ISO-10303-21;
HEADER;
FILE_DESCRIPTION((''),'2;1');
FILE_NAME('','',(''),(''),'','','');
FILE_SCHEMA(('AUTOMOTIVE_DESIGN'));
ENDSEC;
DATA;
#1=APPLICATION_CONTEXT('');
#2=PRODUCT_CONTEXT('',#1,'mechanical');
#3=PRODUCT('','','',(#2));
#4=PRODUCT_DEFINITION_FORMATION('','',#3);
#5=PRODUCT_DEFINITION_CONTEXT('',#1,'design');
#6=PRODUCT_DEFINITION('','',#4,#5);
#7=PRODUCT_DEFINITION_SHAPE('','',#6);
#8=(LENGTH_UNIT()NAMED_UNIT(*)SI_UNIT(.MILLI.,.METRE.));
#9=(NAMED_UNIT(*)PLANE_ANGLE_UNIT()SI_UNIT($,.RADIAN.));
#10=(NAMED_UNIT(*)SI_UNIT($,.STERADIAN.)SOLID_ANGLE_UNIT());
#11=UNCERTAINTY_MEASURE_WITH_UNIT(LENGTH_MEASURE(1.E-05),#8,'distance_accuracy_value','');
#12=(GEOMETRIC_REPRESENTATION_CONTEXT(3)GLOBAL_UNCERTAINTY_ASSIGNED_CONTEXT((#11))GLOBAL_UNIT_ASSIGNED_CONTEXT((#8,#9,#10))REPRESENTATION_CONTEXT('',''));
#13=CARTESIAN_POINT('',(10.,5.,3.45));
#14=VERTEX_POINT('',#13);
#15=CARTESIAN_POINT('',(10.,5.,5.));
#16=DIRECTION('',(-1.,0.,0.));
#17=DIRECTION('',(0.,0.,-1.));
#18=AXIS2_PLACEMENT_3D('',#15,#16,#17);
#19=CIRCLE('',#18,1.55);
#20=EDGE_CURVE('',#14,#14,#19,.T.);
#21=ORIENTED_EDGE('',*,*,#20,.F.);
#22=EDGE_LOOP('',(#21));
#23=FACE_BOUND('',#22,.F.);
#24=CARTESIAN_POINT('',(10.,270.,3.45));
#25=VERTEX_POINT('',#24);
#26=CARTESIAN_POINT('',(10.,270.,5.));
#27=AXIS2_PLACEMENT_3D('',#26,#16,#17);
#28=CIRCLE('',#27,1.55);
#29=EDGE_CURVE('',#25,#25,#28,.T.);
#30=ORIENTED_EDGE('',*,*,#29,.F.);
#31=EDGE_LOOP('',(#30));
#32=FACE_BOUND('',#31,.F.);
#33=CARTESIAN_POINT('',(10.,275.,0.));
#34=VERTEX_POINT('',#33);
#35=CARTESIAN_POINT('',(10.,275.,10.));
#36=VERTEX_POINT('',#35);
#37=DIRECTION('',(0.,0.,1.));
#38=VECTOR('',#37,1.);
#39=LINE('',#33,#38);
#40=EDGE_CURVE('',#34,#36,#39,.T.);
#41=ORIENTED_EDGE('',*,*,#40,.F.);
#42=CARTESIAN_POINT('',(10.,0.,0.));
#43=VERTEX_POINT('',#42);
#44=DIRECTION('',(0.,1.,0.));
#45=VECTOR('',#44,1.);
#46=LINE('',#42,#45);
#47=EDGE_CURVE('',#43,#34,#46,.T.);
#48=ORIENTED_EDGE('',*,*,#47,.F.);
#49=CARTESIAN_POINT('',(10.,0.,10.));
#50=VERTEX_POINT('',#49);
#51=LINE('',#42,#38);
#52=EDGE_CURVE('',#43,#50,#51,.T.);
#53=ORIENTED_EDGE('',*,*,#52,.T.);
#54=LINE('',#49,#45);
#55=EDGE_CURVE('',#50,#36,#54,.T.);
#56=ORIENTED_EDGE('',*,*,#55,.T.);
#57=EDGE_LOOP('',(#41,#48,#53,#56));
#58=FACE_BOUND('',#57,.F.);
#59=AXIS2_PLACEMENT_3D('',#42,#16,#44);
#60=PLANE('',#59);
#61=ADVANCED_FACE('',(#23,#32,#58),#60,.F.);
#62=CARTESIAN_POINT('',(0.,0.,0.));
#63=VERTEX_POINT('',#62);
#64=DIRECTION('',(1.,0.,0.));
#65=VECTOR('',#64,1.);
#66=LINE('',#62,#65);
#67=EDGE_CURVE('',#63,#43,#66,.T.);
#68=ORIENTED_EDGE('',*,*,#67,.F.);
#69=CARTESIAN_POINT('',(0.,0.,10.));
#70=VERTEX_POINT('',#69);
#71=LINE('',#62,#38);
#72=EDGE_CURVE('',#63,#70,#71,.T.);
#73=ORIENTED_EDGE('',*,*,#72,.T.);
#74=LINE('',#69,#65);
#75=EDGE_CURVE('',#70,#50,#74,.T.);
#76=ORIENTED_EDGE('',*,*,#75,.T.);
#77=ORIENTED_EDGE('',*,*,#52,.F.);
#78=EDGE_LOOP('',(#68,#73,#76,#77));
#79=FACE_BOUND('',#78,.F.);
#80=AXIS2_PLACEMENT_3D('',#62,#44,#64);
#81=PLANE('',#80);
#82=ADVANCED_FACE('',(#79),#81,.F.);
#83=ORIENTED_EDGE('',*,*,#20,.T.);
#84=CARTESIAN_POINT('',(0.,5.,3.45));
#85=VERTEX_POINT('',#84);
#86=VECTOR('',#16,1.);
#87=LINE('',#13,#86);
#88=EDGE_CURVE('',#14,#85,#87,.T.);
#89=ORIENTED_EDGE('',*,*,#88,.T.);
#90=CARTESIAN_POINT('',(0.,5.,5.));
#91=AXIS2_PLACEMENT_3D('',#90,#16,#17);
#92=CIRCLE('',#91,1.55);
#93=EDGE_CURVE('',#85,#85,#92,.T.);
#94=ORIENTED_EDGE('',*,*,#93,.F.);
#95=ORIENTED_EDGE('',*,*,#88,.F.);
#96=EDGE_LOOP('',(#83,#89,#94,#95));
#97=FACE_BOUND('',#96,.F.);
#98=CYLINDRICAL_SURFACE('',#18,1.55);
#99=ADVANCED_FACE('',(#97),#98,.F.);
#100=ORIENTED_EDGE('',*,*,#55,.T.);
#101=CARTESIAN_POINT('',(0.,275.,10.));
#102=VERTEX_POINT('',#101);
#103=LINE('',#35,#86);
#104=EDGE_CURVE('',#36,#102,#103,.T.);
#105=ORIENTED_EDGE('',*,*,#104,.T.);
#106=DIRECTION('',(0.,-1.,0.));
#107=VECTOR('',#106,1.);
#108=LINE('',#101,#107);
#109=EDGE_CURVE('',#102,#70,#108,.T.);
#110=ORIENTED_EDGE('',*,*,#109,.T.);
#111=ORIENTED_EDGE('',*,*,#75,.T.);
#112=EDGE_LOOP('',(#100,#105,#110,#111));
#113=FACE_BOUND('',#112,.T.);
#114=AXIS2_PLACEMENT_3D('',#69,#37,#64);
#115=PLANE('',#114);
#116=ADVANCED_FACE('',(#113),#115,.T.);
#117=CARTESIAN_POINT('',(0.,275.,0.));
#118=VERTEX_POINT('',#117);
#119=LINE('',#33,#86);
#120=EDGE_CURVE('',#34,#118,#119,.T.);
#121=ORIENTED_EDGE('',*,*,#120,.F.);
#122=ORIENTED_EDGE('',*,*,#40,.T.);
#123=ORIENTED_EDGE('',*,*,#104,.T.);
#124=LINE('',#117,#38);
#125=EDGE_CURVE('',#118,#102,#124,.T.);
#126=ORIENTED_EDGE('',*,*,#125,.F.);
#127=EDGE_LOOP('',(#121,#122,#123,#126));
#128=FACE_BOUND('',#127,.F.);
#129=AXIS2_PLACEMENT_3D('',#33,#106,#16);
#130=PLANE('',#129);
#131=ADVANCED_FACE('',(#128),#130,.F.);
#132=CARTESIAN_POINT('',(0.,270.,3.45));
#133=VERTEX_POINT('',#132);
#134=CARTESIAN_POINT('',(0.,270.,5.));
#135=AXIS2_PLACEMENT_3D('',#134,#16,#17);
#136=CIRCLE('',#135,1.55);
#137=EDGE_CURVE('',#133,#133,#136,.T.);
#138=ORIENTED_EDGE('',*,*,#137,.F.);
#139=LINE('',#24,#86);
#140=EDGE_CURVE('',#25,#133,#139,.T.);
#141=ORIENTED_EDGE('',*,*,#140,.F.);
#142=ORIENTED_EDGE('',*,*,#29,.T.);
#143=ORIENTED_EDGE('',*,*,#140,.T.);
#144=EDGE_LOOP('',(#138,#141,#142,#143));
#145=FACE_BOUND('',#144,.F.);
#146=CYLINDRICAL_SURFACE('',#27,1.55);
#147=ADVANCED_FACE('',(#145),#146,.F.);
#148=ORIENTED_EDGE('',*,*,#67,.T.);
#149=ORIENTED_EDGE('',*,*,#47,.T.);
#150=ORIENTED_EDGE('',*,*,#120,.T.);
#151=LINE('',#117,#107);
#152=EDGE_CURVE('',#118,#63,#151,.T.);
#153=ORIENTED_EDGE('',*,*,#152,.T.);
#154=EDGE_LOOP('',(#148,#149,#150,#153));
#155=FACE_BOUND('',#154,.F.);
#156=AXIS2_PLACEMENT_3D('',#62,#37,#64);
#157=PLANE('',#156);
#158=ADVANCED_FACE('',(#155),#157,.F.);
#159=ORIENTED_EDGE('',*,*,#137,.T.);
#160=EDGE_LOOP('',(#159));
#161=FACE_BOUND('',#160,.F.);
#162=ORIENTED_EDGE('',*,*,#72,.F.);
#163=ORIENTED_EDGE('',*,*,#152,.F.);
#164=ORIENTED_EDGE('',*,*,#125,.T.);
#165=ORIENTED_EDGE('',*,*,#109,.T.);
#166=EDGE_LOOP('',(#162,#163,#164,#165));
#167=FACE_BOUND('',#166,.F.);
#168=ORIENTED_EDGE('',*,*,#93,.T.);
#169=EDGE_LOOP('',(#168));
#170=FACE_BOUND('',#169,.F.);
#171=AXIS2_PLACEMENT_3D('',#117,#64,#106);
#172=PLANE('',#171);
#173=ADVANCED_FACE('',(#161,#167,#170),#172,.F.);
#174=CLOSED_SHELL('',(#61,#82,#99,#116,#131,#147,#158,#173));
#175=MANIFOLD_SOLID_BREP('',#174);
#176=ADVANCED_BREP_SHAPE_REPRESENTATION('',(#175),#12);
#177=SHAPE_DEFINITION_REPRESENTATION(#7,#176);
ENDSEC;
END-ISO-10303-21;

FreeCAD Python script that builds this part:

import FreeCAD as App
import Part
import Sketcher


def add_polygon(sketch, points):
    """Adds a closed chain of lines whose ends are joined by coincident constraints."""
    first, n = sketch.GeometryCount, len(points)
    for a, b in zip(points, points[1:] + points[:1]):
        sketch.addGeometry(Part.LineSegment(App.Vector(*a, 0), App.Vector(*b, 0)), False)
    for i in range(n):
        sketch.addConstraint(Sketcher.Constraint("Coincident", first + i, 2, first + (i + 1) % n, 1))

doc = App.newDocument("Part")
body = doc.addObject("PartDesign::Body", "Body")

# Sketch on XY plane
sketch1 = doc.addObject("Sketcher::SketchObject", "Sketch")
body.addObject(sketch1)
sketch1.AttachmentSupport = (doc.XY_Plane, [""])
sketch1.MapMode = "FlatFace"
add_polygon(sketch1, [(0, 275), (0, 0), (10, 0), (10, 275)])  # lines 0-3
sketch1.addConstraint([
    Sketcher.Constraint("Vertical", 0),
    Sketcher.Constraint("Horizontal", 1),
    Sketcher.Constraint("Vertical", 2),
    Sketcher.Constraint("Horizontal", 3),
    Sketcher.Constraint("Coincident", 0, 2, -1, 1),
    Sketcher.Constraint("DistanceX", 1, 1, 1, 2, 10.0),
    Sketcher.Constraint("DistanceY", 0, 2, 0, 1, 275.0),
])
pad1 = doc.addObject("PartDesign::Pad", "Pad")
body.addObject(pad1)
pad1.Profile = sketch1
pad1.Length = 10

# Sketch on YZ plane
sketch2 = doc.addObject("Sketcher::SketchObject", "Sketch001")
body.addObject(sketch2)
sketch2.AttachmentSupport = (doc.YZ_Plane, [""])
sketch2.MapMode = "FlatFace"
sketch2.AttachmentOffset = App.Placement(App.Vector(0, 0, 10), App.Rotation())
sketch2.addGeometry([
    Part.Circle(App.Vector(5, 5, 0), App.Vector(0, 0, 1), 1.6),
    Part.Circle(App.Vector(270, 5, 0), App.Vector(0, 0, 1), 1.6),
], False)
sketch2.addConstraint([
    Sketcher.Constraint("Equal", 0, 1),
    Sketcher.Constraint("Horizontal", 0, 3, 1, 3),
    Sketcher.Constraint("Diameter", 0, 3.1),
    Sketcher.Constraint("DistanceX", -1, 1, 0, 3, 5.0),
    Sketcher.Constraint("DistanceY", -1, 1, 0, 3, 5.0),
    Sketcher.Constraint("DistanceX", -1, 1, 1, 3, 270.0),
])
doc.recompute()
hole = doc.addObject("PartDesign::Hole", "Hole")
body.addObject(hole)
hole.Profile = sketch2
hole.ThreadType = "None"
hole.Diameter = 3.1
hole.DepthType = "ThroughAll"

doc.recompute()
